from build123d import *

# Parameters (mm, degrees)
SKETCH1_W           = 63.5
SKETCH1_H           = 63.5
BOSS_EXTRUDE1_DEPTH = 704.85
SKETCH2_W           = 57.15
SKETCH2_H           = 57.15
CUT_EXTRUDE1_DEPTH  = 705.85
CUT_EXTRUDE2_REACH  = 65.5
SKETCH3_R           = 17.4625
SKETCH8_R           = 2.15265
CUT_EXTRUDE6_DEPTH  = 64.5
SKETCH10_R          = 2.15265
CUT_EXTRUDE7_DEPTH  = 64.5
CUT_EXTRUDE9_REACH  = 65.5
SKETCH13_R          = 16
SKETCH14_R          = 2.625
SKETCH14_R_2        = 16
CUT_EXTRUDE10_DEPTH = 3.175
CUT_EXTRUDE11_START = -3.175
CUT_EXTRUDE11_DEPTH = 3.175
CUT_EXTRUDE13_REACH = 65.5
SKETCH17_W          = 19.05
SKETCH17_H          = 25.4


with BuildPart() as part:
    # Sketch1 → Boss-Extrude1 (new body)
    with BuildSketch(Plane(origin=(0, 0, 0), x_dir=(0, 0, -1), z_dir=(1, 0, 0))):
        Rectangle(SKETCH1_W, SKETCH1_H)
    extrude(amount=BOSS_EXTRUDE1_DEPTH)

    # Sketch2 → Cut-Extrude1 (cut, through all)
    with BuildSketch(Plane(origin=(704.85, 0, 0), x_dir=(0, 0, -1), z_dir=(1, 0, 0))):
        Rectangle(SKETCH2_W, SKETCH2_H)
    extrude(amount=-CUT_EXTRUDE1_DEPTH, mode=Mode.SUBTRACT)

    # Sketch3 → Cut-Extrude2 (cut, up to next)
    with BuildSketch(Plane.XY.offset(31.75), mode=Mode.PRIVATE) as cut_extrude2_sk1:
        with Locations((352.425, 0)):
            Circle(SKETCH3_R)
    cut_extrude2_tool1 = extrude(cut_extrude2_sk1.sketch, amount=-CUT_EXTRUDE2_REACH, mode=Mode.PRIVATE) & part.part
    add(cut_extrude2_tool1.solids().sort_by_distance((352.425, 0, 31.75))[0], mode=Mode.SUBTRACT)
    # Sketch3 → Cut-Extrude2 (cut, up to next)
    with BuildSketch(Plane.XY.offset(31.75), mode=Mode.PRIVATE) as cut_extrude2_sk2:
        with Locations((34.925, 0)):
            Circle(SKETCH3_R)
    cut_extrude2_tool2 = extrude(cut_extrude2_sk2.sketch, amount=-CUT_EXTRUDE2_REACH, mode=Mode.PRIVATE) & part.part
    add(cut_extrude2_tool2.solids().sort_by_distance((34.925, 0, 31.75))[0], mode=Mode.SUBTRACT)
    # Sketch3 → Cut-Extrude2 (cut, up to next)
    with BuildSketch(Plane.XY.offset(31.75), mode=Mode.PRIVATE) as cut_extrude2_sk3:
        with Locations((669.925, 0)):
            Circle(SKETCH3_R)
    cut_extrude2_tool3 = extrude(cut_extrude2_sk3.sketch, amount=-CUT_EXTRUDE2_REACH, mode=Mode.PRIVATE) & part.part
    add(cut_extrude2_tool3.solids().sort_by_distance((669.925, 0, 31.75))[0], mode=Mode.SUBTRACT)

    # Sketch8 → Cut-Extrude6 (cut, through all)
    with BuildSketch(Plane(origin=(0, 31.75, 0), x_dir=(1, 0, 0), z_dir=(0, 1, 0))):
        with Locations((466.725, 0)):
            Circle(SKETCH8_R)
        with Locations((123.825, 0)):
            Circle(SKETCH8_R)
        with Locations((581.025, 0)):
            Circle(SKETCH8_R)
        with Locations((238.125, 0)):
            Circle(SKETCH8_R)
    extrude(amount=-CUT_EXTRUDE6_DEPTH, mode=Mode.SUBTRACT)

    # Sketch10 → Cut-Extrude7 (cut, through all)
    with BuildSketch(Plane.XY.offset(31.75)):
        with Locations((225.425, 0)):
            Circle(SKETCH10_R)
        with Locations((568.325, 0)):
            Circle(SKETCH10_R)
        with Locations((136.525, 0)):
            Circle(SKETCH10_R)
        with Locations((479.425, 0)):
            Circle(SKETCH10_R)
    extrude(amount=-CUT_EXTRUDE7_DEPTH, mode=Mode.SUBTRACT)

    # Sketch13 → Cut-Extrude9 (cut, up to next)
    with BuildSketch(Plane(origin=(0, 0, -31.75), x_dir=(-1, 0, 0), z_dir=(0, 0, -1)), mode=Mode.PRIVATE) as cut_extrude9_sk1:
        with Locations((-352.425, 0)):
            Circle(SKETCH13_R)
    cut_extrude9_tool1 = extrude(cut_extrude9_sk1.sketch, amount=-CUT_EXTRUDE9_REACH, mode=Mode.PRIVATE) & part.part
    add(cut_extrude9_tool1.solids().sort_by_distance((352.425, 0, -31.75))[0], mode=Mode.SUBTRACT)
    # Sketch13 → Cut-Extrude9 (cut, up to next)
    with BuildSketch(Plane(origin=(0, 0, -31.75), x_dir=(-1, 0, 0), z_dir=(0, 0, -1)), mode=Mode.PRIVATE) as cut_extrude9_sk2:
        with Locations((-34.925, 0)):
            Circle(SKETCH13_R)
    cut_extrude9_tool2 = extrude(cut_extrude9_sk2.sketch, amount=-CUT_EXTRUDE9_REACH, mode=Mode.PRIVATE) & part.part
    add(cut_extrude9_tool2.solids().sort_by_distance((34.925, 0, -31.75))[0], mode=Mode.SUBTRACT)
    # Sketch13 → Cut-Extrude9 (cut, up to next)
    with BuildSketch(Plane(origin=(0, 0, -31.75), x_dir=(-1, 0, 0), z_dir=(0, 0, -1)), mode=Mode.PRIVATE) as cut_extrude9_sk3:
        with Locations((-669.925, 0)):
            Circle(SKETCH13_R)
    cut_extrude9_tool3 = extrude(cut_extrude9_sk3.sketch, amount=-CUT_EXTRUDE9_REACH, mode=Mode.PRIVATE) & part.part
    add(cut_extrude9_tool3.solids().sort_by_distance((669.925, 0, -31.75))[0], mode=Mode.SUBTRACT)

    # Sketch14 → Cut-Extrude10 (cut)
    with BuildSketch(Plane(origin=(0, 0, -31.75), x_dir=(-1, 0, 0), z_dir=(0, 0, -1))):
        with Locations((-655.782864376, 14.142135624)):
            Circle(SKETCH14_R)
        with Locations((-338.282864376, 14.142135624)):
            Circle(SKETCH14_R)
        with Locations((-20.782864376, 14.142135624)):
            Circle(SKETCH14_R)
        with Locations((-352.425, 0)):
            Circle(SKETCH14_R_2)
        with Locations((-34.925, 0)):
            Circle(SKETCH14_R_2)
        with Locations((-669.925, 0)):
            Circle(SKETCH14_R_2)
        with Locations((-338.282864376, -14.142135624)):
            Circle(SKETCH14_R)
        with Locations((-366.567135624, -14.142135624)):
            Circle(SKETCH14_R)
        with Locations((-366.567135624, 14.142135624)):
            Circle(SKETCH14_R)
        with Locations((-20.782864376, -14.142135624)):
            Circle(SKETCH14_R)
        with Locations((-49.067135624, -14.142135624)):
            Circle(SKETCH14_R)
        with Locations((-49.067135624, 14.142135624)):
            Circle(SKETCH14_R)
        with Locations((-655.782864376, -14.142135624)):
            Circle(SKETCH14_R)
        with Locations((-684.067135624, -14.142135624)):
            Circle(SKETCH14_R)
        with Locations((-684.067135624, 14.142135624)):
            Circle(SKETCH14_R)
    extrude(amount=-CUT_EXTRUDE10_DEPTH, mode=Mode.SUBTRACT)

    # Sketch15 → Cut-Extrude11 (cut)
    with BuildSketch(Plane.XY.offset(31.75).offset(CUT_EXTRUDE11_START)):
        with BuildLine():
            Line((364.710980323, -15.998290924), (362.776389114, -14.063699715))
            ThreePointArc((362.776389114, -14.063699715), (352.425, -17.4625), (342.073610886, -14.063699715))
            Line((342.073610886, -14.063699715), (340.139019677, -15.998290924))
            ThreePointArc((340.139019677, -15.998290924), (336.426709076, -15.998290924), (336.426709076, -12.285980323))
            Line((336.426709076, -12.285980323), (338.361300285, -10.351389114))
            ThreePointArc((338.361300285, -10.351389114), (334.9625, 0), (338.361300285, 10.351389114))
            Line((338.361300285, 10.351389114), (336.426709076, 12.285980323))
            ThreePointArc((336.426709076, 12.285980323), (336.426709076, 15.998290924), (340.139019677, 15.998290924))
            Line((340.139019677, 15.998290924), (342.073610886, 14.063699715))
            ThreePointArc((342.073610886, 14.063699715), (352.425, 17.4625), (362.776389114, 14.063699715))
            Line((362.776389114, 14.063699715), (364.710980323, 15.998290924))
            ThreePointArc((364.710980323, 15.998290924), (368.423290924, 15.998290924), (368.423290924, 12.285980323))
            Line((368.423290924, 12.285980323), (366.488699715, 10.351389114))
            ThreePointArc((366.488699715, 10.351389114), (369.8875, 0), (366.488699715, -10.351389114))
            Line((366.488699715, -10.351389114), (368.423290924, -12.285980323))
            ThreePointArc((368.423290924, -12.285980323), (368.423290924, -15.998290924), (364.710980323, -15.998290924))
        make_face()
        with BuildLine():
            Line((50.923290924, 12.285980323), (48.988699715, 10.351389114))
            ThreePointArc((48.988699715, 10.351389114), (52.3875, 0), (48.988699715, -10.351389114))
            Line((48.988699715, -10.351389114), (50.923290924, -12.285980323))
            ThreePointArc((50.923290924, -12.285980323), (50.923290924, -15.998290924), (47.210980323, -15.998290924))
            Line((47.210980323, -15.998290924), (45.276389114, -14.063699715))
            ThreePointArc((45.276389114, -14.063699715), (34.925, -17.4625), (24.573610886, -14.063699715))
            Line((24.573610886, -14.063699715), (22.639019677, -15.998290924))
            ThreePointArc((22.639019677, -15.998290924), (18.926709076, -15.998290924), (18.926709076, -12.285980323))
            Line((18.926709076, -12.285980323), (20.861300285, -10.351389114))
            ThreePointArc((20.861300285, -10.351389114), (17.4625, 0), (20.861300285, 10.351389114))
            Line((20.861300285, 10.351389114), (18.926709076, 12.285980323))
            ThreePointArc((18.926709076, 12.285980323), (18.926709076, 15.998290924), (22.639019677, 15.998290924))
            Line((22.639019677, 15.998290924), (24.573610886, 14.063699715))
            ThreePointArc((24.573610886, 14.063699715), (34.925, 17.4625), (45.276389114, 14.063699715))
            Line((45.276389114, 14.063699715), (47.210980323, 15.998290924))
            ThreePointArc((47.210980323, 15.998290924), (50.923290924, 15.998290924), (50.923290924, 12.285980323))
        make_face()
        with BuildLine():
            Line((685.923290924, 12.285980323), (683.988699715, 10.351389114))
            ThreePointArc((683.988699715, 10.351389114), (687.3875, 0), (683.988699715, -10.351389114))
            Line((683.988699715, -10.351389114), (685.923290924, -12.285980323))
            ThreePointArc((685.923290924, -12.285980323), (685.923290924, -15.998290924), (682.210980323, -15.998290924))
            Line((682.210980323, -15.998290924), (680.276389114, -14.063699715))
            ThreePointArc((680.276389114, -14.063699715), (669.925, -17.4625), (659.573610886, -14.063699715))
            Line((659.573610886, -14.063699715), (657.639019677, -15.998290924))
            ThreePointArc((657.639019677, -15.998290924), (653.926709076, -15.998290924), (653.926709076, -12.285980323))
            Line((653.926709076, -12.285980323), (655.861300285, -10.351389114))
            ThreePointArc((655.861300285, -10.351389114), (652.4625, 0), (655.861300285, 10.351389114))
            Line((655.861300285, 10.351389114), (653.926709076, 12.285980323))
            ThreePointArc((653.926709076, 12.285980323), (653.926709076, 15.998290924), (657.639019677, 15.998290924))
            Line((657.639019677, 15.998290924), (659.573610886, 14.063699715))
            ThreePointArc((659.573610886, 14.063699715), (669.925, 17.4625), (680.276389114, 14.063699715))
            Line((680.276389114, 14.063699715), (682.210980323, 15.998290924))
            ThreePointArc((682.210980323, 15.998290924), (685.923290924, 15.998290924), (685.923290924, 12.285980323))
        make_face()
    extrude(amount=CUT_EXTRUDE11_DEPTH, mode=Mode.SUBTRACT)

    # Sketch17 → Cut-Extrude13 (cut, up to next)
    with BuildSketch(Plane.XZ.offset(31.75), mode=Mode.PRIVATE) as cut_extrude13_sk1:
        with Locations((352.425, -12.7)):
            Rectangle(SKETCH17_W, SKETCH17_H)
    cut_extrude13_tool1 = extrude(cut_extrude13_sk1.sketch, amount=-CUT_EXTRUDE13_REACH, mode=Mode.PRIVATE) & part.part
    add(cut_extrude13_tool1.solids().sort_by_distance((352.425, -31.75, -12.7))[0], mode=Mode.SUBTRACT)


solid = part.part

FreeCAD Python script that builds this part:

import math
import FreeCAD as App
import Part
import Sketcher
Q = App.Units.Quantity

doc = App.newDocument("Part")
params = doc.addObject("Spreadsheet::Sheet", "Params")
for row, (alias, value) in enumerate([
    ("sketch1_width", "2.5 in"),
    ("pad1_length", "27.75 in"),
    ("sketch2_width", "2.25 in"),
    ("sketch3_diameter", "1.375 in"),
    ("sketch4_diameter", "1.375 in"),
    ("sketch5_diameter", "1.375 in"),
    ("pocket10_length", "0.125 in"),
    ("sketch12_radius", "0.6875 in"),
    ("pocket11_length", "0.125 in"),
    ("sketch13_height", "1 in"),
    ("sketch13_width", "0.75 in"),
], start=1):
    params.set(f"A{row}", alias)
    params.set(f"B{row}", "=" + value)
    params.setAlias(f"B{row}", alias)

body = doc.addObject("PartDesign::Body", "Body")

sketch1 = body.newObject("Sketcher::SketchObject", "Sketch")
sketch1.AttachmentSupport = (doc.getObject("YZ_Plane"), [""])
sketch1.MapMode = "FlatFace"
sketch1.addGeometry([
    Part.LineSegment(App.Vector(31.75, 31.75, 0), App.Vector(-31.75, 31.75, 0)),
    Part.LineSegment(App.Vector(-31.75, 31.75, 0), App.Vector(-31.75, -31.75, 0)),
    Part.LineSegment(App.Vector(-31.75, -31.75, 0), App.Vector(31.75, -31.75, 0)),
    Part.LineSegment(App.Vector(31.75, -31.75, 0), App.Vector(31.75, 31.75, 0)),
], False)
sketch1.addConstraint([
    Sketcher.Constraint("Coincident", 0, 2, 1, 1),
    Sketcher.Constraint("Coincident", 1, 2, 2, 1),
    Sketcher.Constraint("Coincident", 2, 2, 3, 1),
    Sketcher.Constraint("Coincident", 3, 2, 0, 1),
    Sketcher.Constraint("Horizontal", 0),
    Sketcher.Constraint("Vertical", 1),
    Sketcher.Constraint("Horizontal", 2),
    Sketcher.Constraint("Vertical", 3),
    Sketcher.Constraint("Symmetric", 0, 2, 2, 2, -1, 1),
    Sketcher.Constraint("Equal", 2, 1),
    Sketcher.Constraint("DistanceX", 0, 2, 0, 1, Q("2.5 in")),
])
sketch1.setExpression("Constraints[10]", "Params.sketch1_width")
pad1 = body.newObject("PartDesign::Pad", "Pad")
pad1.Profile = sketch1
pad1.setExpression("Length", "Params.pad1_length")

sketch2 = body.newObject("Sketcher::SketchObject", "Sketch001")
sketch2.AttachmentSupport = (doc.getObject("YZ_Plane"), [""])
sketch2.MapMode = "FlatFace"
sketch2.AttachmentOffset = App.Placement(App.Vector(0, 0, 27.75 * 25.4), App.Rotation())
sketch2.addGeometry([
    Part.LineSegment(App.Vector(28.575, 28.575, 0), App.Vector(-28.575, 28.575, 0)),
    Part.LineSegment(App.Vector(-28.575, 28.575, 0), App.Vector(-28.575, -28.575, 0)),
    Part.LineSegment(App.Vector(-28.575, -28.575, 0), App.Vector(28.575, -28.575, 0)),
    Part.LineSegment(App.Vector(28.575, -28.575, 0), App.Vector(28.575, 28.575, 0)),
], False)
sketch2.addConstraint([
    Sketcher.Constraint("Coincident", 0, 2, 1, 1),
    Sketcher.Constraint("Coincident", 1, 2, 2, 1),
    Sketcher.Constraint("Coincident", 2, 2, 3, 1),
    Sketcher.Constraint("Coincident", 3, 2, 0, 1),
    Sketcher.Constraint("Horizontal", 0),
    Sketcher.Constraint("Vertical", 1),
    Sketcher.Constraint("Horizontal", 2),
    Sketcher.Constraint("Vertical", 3),
    Sketcher.Constraint("Symmetric", 0, 2, 2, 2, -1, 1),
    Sketcher.Constraint("Equal", 2, 1),
    Sketcher.Constraint("DistanceX", 0, 2, 0, 1, Q("2.25 in")),
])
sketch2.setExpression("Constraints[10]", "Params.sketch2_width")
pocket1 = body.newObject("PartDesign::Pocket", "Pocket")
pocket1.Profile = sketch2
pocket1.Type = "ThroughAll"

sketch3 = body.newObject("Sketcher::SketchObject", "Sketch002")
sketch3.AttachmentSupport = (doc.getObject("XY_Plane"), [""])
sketch3.MapMode = "FlatFace"
sketch3.AttachmentOffset = App.Placement(App.Vector(0, 0, 1.25 * 25.4), App.Rotation())
sketch3.addGeometry(Part.Circle(App.Vector(352.425, 0, 0), App.Vector(0, 0, 1), 17.4625), False)
sketch3.addConstraint([
    Sketcher.Constraint("PointOnObject", 0, 3, -1),
    Sketcher.Constraint("Diameter", 0, Q("1.375 in")),
    Sketcher.Constraint("DistanceX", -1, 1, 0, 3, Q("13.875 in")),
])
sketch3.setExpression("Constraints[1]", "Params.sketch3_diameter")
pocket2 = body.newObject("PartDesign::Pocket", "Pocket001")
pocket2.Profile = sketch3
pocket2.Type = "UpToFirst"

sketch4 = body.newObject("Sketcher::SketchObject", "Sketch003")
sketch4.AttachmentSupport = (doc.getObject("XY_Plane"), [""])
sketch4.MapMode = "FlatFace"
sketch4.AttachmentOffset = App.Placement(App.Vector(0, 0, 1.25 * 25.4), App.Rotation())
sketch4.addGeometry(Part.Circle(App.Vector(34.925, 0, 0), App.Vector(0, 0, 1), 17.4625), False)
sketch4.addConstraint([
    Sketcher.Constraint("PointOnObject", 0, 3, -1),
    Sketcher.Constraint("Diameter", 0, Q("1.375 in")),
    Sketcher.Constraint("DistanceX", -1, 1, 0, 3, Q("1.375 in")),
])
sketch4.setExpression("Constraints[1]", "Params.sketch4_diameter")
pocket3 = body.newObject("PartDesign::Pocket", "Pocket002")
pocket3.Profile = sketch4
pocket3.Type = "UpToFirst"

sketch5 = body.newObject("Sketcher::SketchObject", "Sketch004")
sketch5.AttachmentSupport = (doc.getObject("XY_Plane"), [""])
sketch5.MapMode = "FlatFace"
sketch5.AttachmentOffset = App.Placement(App.Vector(0, 0, 1.25 * 25.4), App.Rotation())
sketch5.addGeometry(Part.Circle(App.Vector(669.925, 0, 0), App.Vector(0, 0, 1), 17.4625), False)
sketch5.addConstraint([
    Sketcher.Constraint("PointOnObject", 0, 3, -1),
    Sketcher.Constraint("Diameter", 0, Q("1.375 in")),
    Sketcher.Constraint("DistanceX", -1, 1, 0, 3, Q("26.375 in")),
])
sketch5.setExpression("Constraints[1]", "Params.sketch5_diameter")
pocket4 = body.newObject("PartDesign::Pocket", "Pocket003")
pocket4.Profile = sketch5
pocket4.Type = "UpToFirst"

sketch6 = body.newObject("Sketcher::SketchObject", "Sketch005")
sketch6.AttachmentSupport = (doc.getObject("XZ_Plane"), [""])
sketch6.MapMode = "FlatFace"
sketch6.AttachmentOffset = App.Placement(App.Vector(0, 0, -1.25 * 25.4), App.Rotation())
sketch6.addGeometry([
    Part.Circle(App.Vector(466.725, 0, 0), App.Vector(0, 0, 1), 2.15265),
    Part.Circle(App.Vector(123.825, 0, 0), App.Vector(0, 0, 1), 2.15265),
    Part.Circle(App.Vector(581.025, 0, 0), App.Vector(0, 0, 1), 2.15265),
    Part.Circle(App.Vector(238.125, 0, 0), App.Vector(0, 0, 1), 2.15265),
], False)
sketch6.addConstraint([
    Sketcher.Constraint("Equal", 0, 1),
    Sketcher.Constraint("Equal", 1, 2),
    Sketcher.Constraint("Equal", 2, 3),
    Sketcher.Constraint("PointOnObject", 0, 3, -1),
    Sketcher.Constraint("PointOnObject", 1, 3, -1),
    Sketcher.Constraint("PointOnObject", 2, 3, -1),
    Sketcher.Constraint("PointOnObject", 3, 3, -1),
    Sketcher.Constraint("DistanceX", 1, 3, 2, 3, Q("18 in")),
    Sketcher.Constraint("DistanceX", 3, 3, 0, 3, Q("9 in")),
    Sketcher.Constraint("Diameter", 0, Q("0.1695 in")),
    Sketcher.Constraint("DistanceX", 1, 3, 0, 3, Q("13.5 in")),
    Sketcher.Constraint("DistanceX", -1, 1, 0, 3, Q("18.375 in")),
])
pocket5 = body.newObject("PartDesign::Pocket", "Pocket004")
pocket5.Profile = sketch6
pocket5.Type = "ThroughAll"
pocket5.Reversed = True

sketch7 = body.newObject("Sketcher::SketchObject", "Sketch006")
sketch7.AttachmentSupport = (doc.getObject("XY_Plane"), [""])
sketch7.MapMode = "FlatFace"
sketch7.AttachmentOffset = App.Placement(App.Vector(0, 0, 1.25 * 25.4), App.Rotation())
sketch7.addGeometry([
    Part.Circle(App.Vector(225.425, 0, 0), App.Vector(0, 0, 1), 2.15265),
    Part.Circle(App.Vector(568.325, 0, 0), App.Vector(0, 0, 1), 2.15265),
    Part.Circle(App.Vector(136.525, 0, 0), App.Vector(0, 0, 1), 2.15265),
    Part.Circle(App.Vector(479.425, 0, 0), App.Vector(0, 0, 1), 2.15265),
], False)
sketch7.addConstraint([
    Sketcher.Constraint("Equal", 0, 1),
    Sketcher.Constraint("Equal", 1, 2),
    Sketcher.Constraint("Equal", 2, 3),
    Sketcher.Constraint("PointOnObject", 0, 3, -1),
    Sketcher.Constraint("PointOnObject", 1, 3, -1),
    Sketcher.Constraint("PointOnObject", 2, 3, -1),
    Sketcher.Constraint("PointOnObject", 3, 3, -1),
    Sketcher.Constraint("DistanceX", 2, 3, 1, 3, Q("17 in")),
    Sketcher.Constraint("DistanceX", 0, 3, 3, 3, Q("10 in")),
    Sketcher.Constraint("Diameter", 0, Q("0.1695 in")),
    Sketcher.Constraint("DistanceX", 0, 3, 1, 3, Q("13.5 in")),
    Sketcher.Constraint("DistanceX", -1, 1, 0, 3, Q("8.875 in")),
])
pocket6 = body.newObject("PartDesign::Pocket", "Pocket005")
pocket6.Profile = sketch7
pocket6.Type = "ThroughAll"

sketch8 = body.newObject("Sketcher::SketchObject", "Sketch007")
sketch8.AttachmentSupport = (doc.getObject("XY_Plane"), [""])
sketch8.MapMode = "FlatFace"
sketch8.AttachmentOffset = App.Placement(App.Vector(0, 0, -1.25 * 25.4), App.Rotation())
sketch8.addGeometry(Part.Circle(App.Vector(352.425, 0, 0), App.Vector(0, 0, 1), 16), False)
sketch8.addConstraint([
    Sketcher.Constraint("PointOnObject", 0, 3, -1),
    Sketcher.Constraint("Diameter", 0, 32.0),
    Sketcher.Constraint("DistanceX", -1, 1, 0, 3, Q("13.875 in")),
])
pocket7 = body.newObject("PartDesign::Pocket", "Pocket006")
pocket7.Profile = sketch8
pocket7.Type = "UpToFirst"
pocket7.Reversed = True

sketch9 = body.newObject("Sketcher::SketchObject", "Sketch008")
sketch9.AttachmentSupport = (doc.getObject("XY_Plane"), [""])
sketch9.MapMode = "FlatFace"
sketch9.AttachmentOffset = App.Placement(App.Vector(0, 0, -1.25 * 25.4), App.Rotation())
sketch9.addGeometry(Part.Circle(App.Vector(34.925, 0, 0), App.Vector(0, 0, 1), 16), False)
sketch9.addConstraint([
    Sketcher.Constraint("PointOnObject", 0, 3, -1),
    Sketcher.Constraint("Diameter", 0, 32.0),
    Sketcher.Constraint("DistanceX", -1, 1, 0, 3, Q("1.375 in")),
])
pocket8 = body.newObject("PartDesign::Pocket", "Pocket007")
pocket8.Profile = sketch9
pocket8.Type = "UpToFirst"
pocket8.Reversed = True

sketch10 = body.newObject("Sketcher::SketchObject", "Sketch009")
sketch10.AttachmentSupport = (doc.getObject("XY_Plane"), [""])
sketch10.MapMode = "FlatFace"
sketch10.AttachmentOffset = App.Placement(App.Vector(0, 0, -1.25 * 25.4), App.Rotation())
sketch10.addGeometry(Part.Circle(App.Vector(669.925, 0, 0), App.Vector(0, 0, 1), 16), False)
sketch10.addConstraint([
    Sketcher.Constraint("PointOnObject", 0, 3, -1),
    Sketcher.Constraint("Diameter", 0, 32.0),
    Sketcher.Constraint("DistanceX", -1, 1, 0, 3, Q("26.375 in")),
])
pocket9 = body.newObject("PartDesign::Pocket", "Pocket008")
pocket9.Profile = sketch10
pocket9.Type = "UpToFirst"
pocket9.Reversed = True

sketch11 = body.newObject("Sketcher::SketchObject", "Sketch010")
sketch11.AttachmentSupport = (doc.getObject("XY_Plane"), [""])
sketch11.MapMode = "FlatFace"
sketch11.AttachmentOffset = App.Placement(App.Vector(0, 0, -1.25 * 25.4), App.Rotation())
sketch11.addGeometry([
    Part.Circle(App.Vector(655.782864, 14.142136, 0), App.Vector(0, 0, 1), 2.625),
    Part.Circle(App.Vector(338.282864, 14.142136, 0), App.Vector(0, 0, 1), 2.625),
    Part.Circle(App.Vector(20.782864, 14.142136, 0), App.Vector(0, 0, 1), 2.625),
    Part.Circle(App.Vector(352.425, 0, 0), App.Vector(0, 0, 1), 16),
    Part.Circle(App.Vector(34.925, 0, 0), App.Vector(0, 0, 1), 16),
    Part.Circle(App.Vector(669.925, 0, 0), App.Vector(0, 0, 1), 16),
    Part.Circle(App.Vector(338.282864, -14.142136, 0), App.Vector(0, 0, 1), 2.625),
    Part.Circle(App.Vector(366.567136, -14.142136, 0), App.Vector(0, 0, 1), 2.625),
    Part.Circle(App.Vector(366.567136, 14.142136, 0), App.Vector(0, 0, 1), 2.625),
    Part.Circle(App.Vector(20.782864, -14.142136, 0), App.Vector(0, 0, 1), 2.625),
    Part.Circle(App.Vector(49.067136, -14.142136, 0), App.Vector(0, 0, 1), 2.625),
    Part.Circle(App.Vector(49.067136, 14.142136, 0), App.Vector(0, 0, 1), 2.625),
    Part.Circle(App.Vector(655.782864, -14.142136, 0), App.Vector(0, 0, 1), 2.625),
    Part.Circle(App.Vector(684.067136, -14.142136, 0), App.Vector(0, 0, 1), 2.625),
    Part.Circle(App.Vector(684.067136, 14.142136, 0), App.Vector(0, 0, 1), 2.625),
], False)
sketch11.addConstraint([
    Sketcher.Constraint("Equal", 0, 1),
    Sketcher.Constraint("Equal", 1, 2),
    Sketcher.Constraint("Equal", 3, 4),
    Sketcher.Constraint("Equal", 4, 5),
    Sketcher.Constraint("Equal", 2, 6),
    Sketcher.Constraint("Equal", 6, 7),
    Sketcher.Constraint("Equal", 7, 8),
    Sketcher.Constraint("Equal", 8, 9),
    Sketcher.Constraint("Equal", 9, 10),
    Sketcher.Constraint("Equal", 10, 11),
    Sketcher.Constraint("Equal", 11, 12),
    Sketcher.Constraint("Equal", 12, 13),
    Sketcher.Constraint("Equal", 13, 14),
    Sketcher.Constraint("Symmetric", 1, 3, 6, 3, -1),
    Sketcher.Constraint("Symmetric", 7, 3, 8, 3, -1),
    Sketcher.Constraint("Symmetric", 2, 3, 9, 3, -1),
    Sketcher.Constraint("Symmetric", 10, 3, 11, 3, -1),
    Sketcher.Constraint("Symmetric", 0, 3, 12, 3, -1),
    Sketcher.Constraint("Symmetric", 13, 3, 14, 3, -1),
    Sketcher.Constraint("PointOnObject", 3, 3, -1),
    Sketcher.Constraint("PointOnObject", 4, 3, -1),
    Sketcher.Constraint("PointOnObject", 5, 3, -1),
    Sketcher.Constraint("Horizontal", 0, 3, 1, 3),
    Sketcher.Constraint("Horizontal", 1, 3, 2, 3),
    Sketcher.Constraint("Horizontal", 6, 3, 7, 3),
    Sketcher.Constraint("Horizontal", 9, 3, 10, 3),
    Sketcher.Constraint("Horizontal", 12, 3, 13, 3),
    Sketcher.Constraint("DistanceX", 2, 3, 0, 3, Q("25 in")),
    Sketcher.Constraint("DistanceX", 4, 3, 5, 3, Q("25 in")),
    Sketcher.Constraint("DistanceX", 1, 3, 0, 3, Q("12.5 in")),
    Sketcher.Constraint("DistanceX", 4, 3, 3, 3, Q("12.5 in")),
    Sketcher.Constraint("DistanceX", 7, 3, 13, 3, Q("12.5 in")),
    Sketcher.Constraint("Diameter", 0, 5.25),
    Sketcher.Constraint("Diameter", 3, 32.0),
    Sketcher.Constraint("DistanceX", -1, 1, 3, 3, Q("13.875 in")),
    Sketcher.Constraint("DistanceY", 6, 3, 1, 3, 28.284271),
    Sketcher.Constraint("DistanceX", 6, 3, 7, 3, 28.284271),
    Sketcher.Constraint("DistanceX", 9, 3, 10, 3, 28.284271),
    Sketcher.Constraint("DistanceX", -1, 1, 0, 3, 655.782864),
])
pocket10 = body.newObject("PartDesign::Pocket", "Pocket009")
pocket10.Profile = sketch11
pocket10.setExpression("Length", "Params.pocket10_length")
pocket10.Reversed = True

sketch12 = body.newObject("Sketcher::SketchObject", "Sketch011")
sketch12.AttachmentSupport = (doc.getObject("XY_Plane"), [""])
sketch12.MapMode = "FlatFace"
sketch12.AttachmentOffset = App.Placement(App.Vector(0, 0, 1.125 * 25.4), App.Rotation())
sketch12.addGeometry([
    Part.LineSegment(App.Vector(362.776389, -14.0637, 0), App.Vector(364.71098, -15.998291, 0)),
    Part.ArcOfCircle(Part.Circle(App.Vector(366.567136, -14.142136, 0), App.Vector(0, 0, 1), 2.625), math.radians(-135), math.radians(45)),
    Part.LineSegment(App.Vector(368.423291, -12.28598, 0), App.Vector(366.4887, -10.351389, 0)),
    Part.ArcOfCircle(Part.Circle(App.Vector(352.425, 0, 0), App.Vector(0, 0, 1), 17.4625), math.radians(-36.354406), math.radians(36.354406)),
    Part.LineSegment(App.Vector(366.4887, 10.351389, 0), App.Vector(368.423291, 12.28598, 0)),
    Part.ArcOfCircle(Part.Circle(App.Vector(366.567136, 14.142136, 0), App.Vector(0, 0, 1), 2.625), math.radians(-45), math.radians(135)),
    Part.LineSegment(App.Vector(364.71098, 15.998291, 0), App.Vector(362.776389, 14.0637, 0)),
    Part.ArcOfCircle(Part.Circle(App.Vector(352.425, 0, 0), App.Vector(0, 0, 1), 17.4625), math.radians(53.645594), math.radians(126.354406)),
    Part.LineSegment(App.Vector(342.073611, 14.0637, 0), App.Vector(340.13902, 15.998291, 0)),
    Part.ArcOfCircle(Part.Circle(App.Vector(338.282864, 14.142136, 0), App.Vector(0, 0, 1), 2.625), math.radians(45), math.radians(225)),
    Part.LineSegment(App.Vector(336.426709, 12.28598, 0), App.Vector(338.3613, 10.351389, 0)),
    Part.ArcOfCircle(Part.Circle(App.Vector(352.425, 0, 0), App.Vector(0, 0, 1), 17.4625), math.radians(143.645594), math.radians(216.354406)),
    Part.LineSegment(App.Vector(338.3613, -10.351389, 0), App.Vector(336.426709, -12.28598, 0)),
    Part.ArcOfCircle(Part.Circle(App.Vector(338.282864, -14.142136, 0), App.Vector(0, 0, 1), 2.625), math.radians(135), math.radians(315)),
    Part.LineSegment(App.Vector(340.13902, -15.998291, 0), App.Vector(342.073611, -14.0637, 0)),
    Part.ArcOfCircle(Part.Circle(App.Vector(352.425, 0, 0), App.Vector(0, 0, 1), 17.4625), math.radians(-126.354406), math.radians(-53.645594)),
    Part.LineSegment(App.Vector(48.9887, 10.351389, 0), App.Vector(50.923291, 12.28598, 0)),
    Part.ArcOfCircle(Part.Circle(App.Vector(49.067136, 14.142136, 0), App.Vector(0, 0, 1), 2.625), math.radians(-45), math.radians(135)),
    Part.LineSegment(App.Vector(47.21098, 15.998291, 0), App.Vector(45.276389, 14.0637, 0)),
    Part.ArcOfCircle(Part.Circle(App.Vector(34.925, 0, 0), App.Vector(0, 0, 1), 17.4625), math.radians(53.645594), math.radians(126.354406)),
    Part.LineSegment(App.Vector(24.573611, 14.0637, 0), App.Vector(22.63902, 15.998291, 0)),
    Part.ArcOfCircle(Part.Circle(App.Vector(20.782864, 14.142136, 0), App.Vector(0, 0, 1), 2.625), math.radians(45), math.radians(225)),
    Part.LineSegment(App.Vector(18.926709, 12.28598, 0), App.Vector(20.8613, 10.351389, 0)),
    Part.ArcOfCircle(Part.Circle(App.Vector(34.925, 0, 0), App.Vector(0, 0, 1), 17.4625), math.radians(143.645594), math.radians(216.354406)),
    Part.LineSegment(App.Vector(20.8613, -10.351389, 0), App.Vector(18.926709, -12.28598, 0)),
    Part.ArcOfCircle(Part.Circle(App.Vector(20.782864, -14.142136, 0), App.Vector(0, 0, 1), 2.625), math.radians(135), math.radians(315)),
    Part.LineSegment(App.Vector(22.63902, -15.998291, 0), App.Vector(24.573611, -14.0637, 0)),
    Part.ArcOfCircle(Part.Circle(App.Vector(34.925, 0, 0), App.Vector(0, 0, 1), 17.4625), math.radians(-126.354406), math.radians(-53.645594)),
    Part.LineSegment(App.Vector(45.276389, -14.0637, 0), App.Vector(47.21098, -15.998291, 0)),
    Part.ArcOfCircle(Part.Circle(App.Vector(49.067136, -14.142136, 0), App.Vector(0, 0, 1), 2.625), math.radians(-135), math.radians(45)),
    Part.LineSegment(App.Vector(50.923291, -12.28598, 0), App.Vector(48.9887, -10.351389, 0)),
    Part.ArcOfCircle(Part.Circle(App.Vector(34.925, 0, 0), App.Vector(0, 0, 1), 17.4625), math.radians(-36.354406), math.radians(36.354406)),
    Part.LineSegment(App.Vector(683.9887, 10.351389, 0), App.Vector(685.923291, 12.28598, 0)),
    Part.ArcOfCircle(Part.Circle(App.Vector(684.067136, 14.142136, 0), App.Vector(0, 0, 1), 2.625), math.radians(-45), math.radians(135)),
    Part.LineSegment(App.Vector(682.21098, 15.998291, 0), App.Vector(680.276389, 14.0637, 0)),
    Part.ArcOfCircle(Part.Circle(App.Vector(669.925, 0, 0), App.Vector(0, 0, 1), 17.4625), math.radians(53.645594), math.radians(126.354406)),
    Part.LineSegment(App.Vector(659.573611, 14.0637, 0), App.Vector(657.63902, 15.998291, 0)),
    Part.ArcOfCircle(Part.Circle(App.Vector(655.782864, 14.142136, 0), App.Vector(0, 0, 1), 2.625), math.radians(45), math.radians(225)),
    Part.LineSegment(App.Vector(653.926709, 12.28598, 0), App.Vector(655.8613, 10.351389, 0)),
    Part.ArcOfCircle(Part.Circle(App.Vector(669.925, 0, 0), App.Vector(0, 0, 1), 17.4625), math.radians(143.645594), math.radians(216.354406)),
    Part.LineSegment(App.Vector(655.8613, -10.351389, 0), App.Vector(653.926709, -12.28598, 0)),
    Part.ArcOfCircle(Part.Circle(App.Vector(655.782864, -14.142136, 0), App.Vector(0, 0, 1), 2.625), math.radians(135), math.radians(315)),
    Part.LineSegment(App.Vector(657.63902, -15.998291, 0), App.Vector(659.573611, -14.0637, 0)),
    Part.ArcOfCircle(Part.Circle(App.Vector(669.925, 0, 0), App.Vector(0, 0, 1), 17.4625), math.radians(-126.354406), math.radians(-53.645594)),
    Part.LineSegment(App.Vector(680.276389, -14.0637, 0), App.Vector(682.21098, -15.998291, 0)),
    Part.ArcOfCircle(Part.Circle(App.Vector(684.067136, -14.142136, 0), App.Vector(0, 0, 1), 2.625), math.radians(-135), math.radians(45)),
    Part.LineSegment(App.Vector(685.923291, -12.28598, 0), App.Vector(683.9887, -10.351389, 0)),
    Part.ArcOfCircle(Part.Circle(App.Vector(669.925, 0, 0), App.Vector(0, 0, 1), 17.4625), math.radians(-36.354406), math.radians(36.354406)),
], False)
sketch12.addConstraint([
    Sketcher.Constraint("Tangent", 0, 2, 1, 1),
    Sketcher.Constraint("Tangent", 1, 2, 2, 1),
    Sketcher.Constraint("Coincident", 2, 2, 3, 1),
    Sketcher.Constraint("Coincident", 3, 2, 4, 1),
    Sketcher.Constraint("Tangent", 4, 2, 5, 1),
    Sketcher.Constraint("Tangent", 5, 2, 6, 1),
    Sketcher.Constraint("Coincident", 6, 2, 7, 1),
    Sketcher.Constraint("Coincident", 7, 2, 8, 1),
    Sketcher.Constraint("Tangent", 8, 2, 9, 1),
    Sketcher.Constraint("Tangent", 9, 2, 10, 1),
    Sketcher.Constraint("Coincident", 10, 2, 11, 1),
    Sketcher.Constraint("Coincident", 11, 2, 12, 1),
    Sketcher.Constraint("Tangent", 12, 2, 13, 1),
    Sketcher.Constraint("Tangent", 13, 2, 14, 1),
    Sketcher.Constraint("Coincident", 14, 2, 15, 1),
    Sketcher.Constraint("Coincident", 15, 2, 0, 1),
    Sketcher.Constraint("Tangent", 16, 2, 17, 1),
    Sketcher.Constraint("Tangent", 17, 2, 18, 1),
    Sketcher.Constraint("Coincident", 18, 2, 19, 1),
    Sketcher.Constraint("Coincident", 19, 2, 20, 1),
    Sketcher.Constraint("Tangent", 20, 2, 21, 1),
    Sketcher.Constraint("Tangent", 21, 2, 22, 1),
    Sketcher.Constraint("Coincident", 22, 2, 23, 1),
    Sketcher.Constraint("Coincident", 23, 2, 24, 1),
    Sketcher.Constraint("Tangent", 24, 2, 25, 1),
    Sketcher.Constraint("Tangent", 25, 2, 26, 1),
    Sketcher.Constraint("Coincident", 26, 2, 27, 1),
    Sketcher.Constraint("Coincident", 27, 2, 28, 1),
    Sketcher.Constraint("Tangent", 28, 2, 29, 1),
    Sketcher.Constraint("Tangent", 29, 2, 30, 1),
    Sketcher.Constraint("Coincident", 30, 2, 31, 1),
    Sketcher.Constraint("Coincident", 31, 2, 16, 1),
    Sketcher.Constraint("Tangent", 32, 2, 33, 1),
    Sketcher.Constraint("Tangent", 33, 2, 34, 1),
    Sketcher.Constraint("Coincident", 34, 2, 35, 1),
    Sketcher.Constraint("Coincident", 35, 2, 36, 1),
    Sketcher.Constraint("Tangent", 36, 2, 37, 1),
    Sketcher.Constraint("Tangent", 37, 2, 38, 1),
    Sketcher.Constraint("Coincident", 38, 2, 39, 1),
    Sketcher.Constraint("Coincident", 39, 2, 40, 1),
    Sketcher.Constraint("Tangent", 40, 2, 41, 1),
    Sketcher.Constraint("Tangent", 41, 2, 42, 1),
    Sketcher.Constraint("Coincident", 42, 2, 43, 1),
    Sketcher.Constraint("Coincident", 43, 2, 44, 1),
    Sketcher.Constraint("Tangent", 44, 2, 45, 1),
    Sketcher.Constraint("Tangent", 45, 2, 46, 1),
    Sketcher.Constraint("Coincident", 46, 2, 47, 1),
    Sketcher.Constraint("Coincident", 47, 2, 32, 1),
    Sketcher.Constraint("Coincident", 7, 3, 3, 3),
    Sketcher.Constraint("Coincident", 11, 3, 3, 3),
    Sketcher.Constraint("Coincident", 15, 3, 3, 3),
    Sketcher.Constraint("Coincident", 23, 3, 19, 3),
    Sketcher.Constraint("Coincident", 27, 3, 19, 3),
    Sketcher.Constraint("Coincident", 31, 3, 19, 3),
    Sketcher.Constraint("Coincident", 39, 3, 35, 3),
    Sketcher.Constraint("Coincident", 43, 3, 35, 3),
    Sketcher.Constraint("Coincident", 47, 3, 35, 3),
    Sketcher.Constraint("Equal", 1, 5),
    Sketcher.Constraint("Equal", 3, 7),
    Sketcher.Constraint("Equal", 5, 9),
    Sketcher.Constraint("Equal", 7, 11),
    Sketcher.Constraint("Equal", 9, 13),
    Sketcher.Constraint("Equal", 11, 15),
    Sketcher.Constraint("Equal", 13, 17),
    Sketcher.Constraint("Equal", 15, 19),
    Sketcher.Constraint("Equal", 17, 21),
    Sketcher.Constraint("Equal", 19, 23),
    Sketcher.Constraint("Equal", 21, 25),
    Sketcher.Constraint("Equal", 23, 27),
    Sketcher.Constraint("Equal", 25, 29),
    Sketcher.Constraint("Equal", 27, 31),
    Sketcher.Constraint("Equal", 29, 33),
    Sketcher.Constraint("Equal", 31, 35),
    Sketcher.Constraint("Equal", 33, 37),
    Sketcher.Constraint("Equal", 35, 39),
    Sketcher.Constraint("Equal", 37, 41),
    Sketcher.Constraint("Equal", 39, 43),
    Sketcher.Constraint("Equal", 41, 45),
    Sketcher.Constraint("Equal", 43, 47),
    Sketcher.Constraint("Symmetric", 1, 3, 5, 3, -1),
    Sketcher.Constraint("Symmetric", 9, 3, 13, 3, -1),
    Sketcher.Constraint("Symmetric", 21, 3, 25, 3, -1),
    Sketcher.Constraint("Symmetric", 17, 3, 29, 3, -1),
    Sketcher.Constraint("Symmetric", 37, 3, 41, 3, -1),
    Sketcher.Constraint("Symmetric", 33, 3, 45, 3, -1),
    Sketcher.Constraint("Symmetric", 2, 2, 3, 2, -1),
    Sketcher.Constraint("Symmetric", 22, 2, 23, 2, -1),
    Sketcher.Constraint("Symmetric", 38, 2, 39, 2, -1),
    Sketcher.Constraint("Parallel", 0, 2),
    Sketcher.Constraint("Perpendicular", 2, 4),
    Sketcher.Constraint("Parallel", 4, 6),
    Sketcher.Constraint("Perpendicular", 6, 8),
    Sketcher.Constraint("Parallel", 8, 10),
    Sketcher.Constraint("Perpendicular", 10, 12),
    Sketcher.Constraint("Parallel", 12, 14),
    Sketcher.Constraint("Parallel", 14, 16),
    Sketcher.Constraint("Parallel", 16, 18),
    Sketcher.Constraint("Perpendicular", 18, 20),
    Sketcher.Constraint("Parallel", 20, 22),
    Sketcher.Constraint("Parallel", 24, 26),
    Sketcher.Constraint("Perpendicular", 26, 28),
    Sketcher.Constraint("Parallel", 28, 30),
    Sketcher.Constraint("Perpendicular", 30, 32),
    Sketcher.Constraint("Parallel", 32, 34),
    Sketcher.Constraint("Perpendicular", 34, 36),
    Sketcher.Constraint("Parallel", 36, 38),
    Sketcher.Constraint("Parallel", 40, 42),
    Sketcher.Constraint("Perpendicular", 42, 44),
    Sketcher.Constraint("Parallel", 44, 46),
    Sketcher.Constraint("Horizontal", 5, 3, 9, 3),
    Sketcher.Constraint("Horizontal", 9, 3, 17, 3),
    Sketcher.Constraint("Horizontal", 17, 3, 21, 3),
    Sketcher.Constraint("Horizontal", 21, 3, 33, 3),
    Sketcher.Constraint("Horizontal", 33, 3, 37, 3),
    Sketcher.Constraint("Horizontal", 6, 2, 7, 2),
    Sketcher.Constraint("Horizontal", 7, 2, 18, 2),
    Sketcher.Constraint("Horizontal", 18, 2, 19, 2),
    Sketcher.Constraint("Horizontal", 19, 2, 34, 2),
    Sketcher.Constraint("Horizontal", 34, 2, 35, 2),
    Sketcher.Constraint("Equal", 0, 2),
    Sketcher.Constraint("Radius", 3, Q("0.6875 in")),
    Sketcher.Constraint("Radius", 1, 2.625),
    Sketcher.Constraint("DistanceX", -1, 1, 3, 3, Q("13.875 in")),
    Sketcher.Constraint("DistanceX", -1, 1, 19, 3, Q("1.375 in")),
    Sketcher.Constraint("DistanceX", -1, 1, 35, 3, Q("26.375 in")),
    Sketcher.Constraint("DistanceX", -1, 1, 0, 2, Q("14.3587 in")),
])
sketch12.setExpression("Constraints[120]", "Params.sketch12_radius")
pocket11 = body.newObject("PartDesign::Pocket", "Pocket010")
pocket11.Profile = sketch12
pocket11.setExpression("Length", "Params.pocket11_length")
pocket11.Reversed = True

sketch13 = body.newObject("Sketcher::SketchObject", "Sketch012")
sketch13.AttachmentSupport = (doc.getObject("XZ_Plane"), [""])
sketch13.MapMode = "FlatFace"
sketch13.AttachmentOffset = App.Placement(App.Vector(0, 0, 1.25 * 25.4), App.Rotation())
sketch13.addGeometry([
    Part.LineSegment(App.Vector(342.9, 0, 0), App.Vector(342.9, -25.4, 0)),
    Part.LineSegment(App.Vector(342.9, -25.4, 0), App.Vector(361.95, -25.4, 0)),
    Part.LineSegment(App.Vector(361.95, -25.4, 0), App.Vector(361.95, 0, 0)),
    Part.LineSegment(App.Vector(361.95, 0, 0), App.Vector(342.9, 0, 0)),
], False)
sketch13.addConstraint([
    Sketcher.Constraint("Coincident", 0, 2, 1, 1),
    Sketcher.Constraint("Coincident", 1, 2, 2, 1),
    Sketcher.Constraint("Coincident", 2, 2, 3, 1),
    Sketcher.Constraint("Coincident", 3, 2, 0, 1),
    Sketcher.Constraint("Vertical", 0),
    Sketcher.Constraint("Horizontal", 1),
    Sketcher.Constraint("Vertical", 2),
    Sketcher.Constraint("Horizontal", 3),
    Sketcher.Constraint("PointOnObject", 2, 2, -1),
    Sketcher.Constraint("DistanceY", 0, 2, 0, 1, Q("1 in")),
    Sketcher.Constraint("DistanceX", 1, 1, 1, 2, Q("0.75 in")),
    Sketcher.Constraint("DistanceX", -1, 1, 0, 2, Q("13.5 in")),
])
sketch13.setExpression("Constraints[9]", "Params.sketch13_height")
sketch13.setExpression("Constraints[10]", "Params.sketch13_width")
pocket12 = body.newObject("PartDesign::Pocket", "Pocket011")
pocket12.Profile = sketch13
pocket12.Type = "UpToFirst"

doc.recompute()
